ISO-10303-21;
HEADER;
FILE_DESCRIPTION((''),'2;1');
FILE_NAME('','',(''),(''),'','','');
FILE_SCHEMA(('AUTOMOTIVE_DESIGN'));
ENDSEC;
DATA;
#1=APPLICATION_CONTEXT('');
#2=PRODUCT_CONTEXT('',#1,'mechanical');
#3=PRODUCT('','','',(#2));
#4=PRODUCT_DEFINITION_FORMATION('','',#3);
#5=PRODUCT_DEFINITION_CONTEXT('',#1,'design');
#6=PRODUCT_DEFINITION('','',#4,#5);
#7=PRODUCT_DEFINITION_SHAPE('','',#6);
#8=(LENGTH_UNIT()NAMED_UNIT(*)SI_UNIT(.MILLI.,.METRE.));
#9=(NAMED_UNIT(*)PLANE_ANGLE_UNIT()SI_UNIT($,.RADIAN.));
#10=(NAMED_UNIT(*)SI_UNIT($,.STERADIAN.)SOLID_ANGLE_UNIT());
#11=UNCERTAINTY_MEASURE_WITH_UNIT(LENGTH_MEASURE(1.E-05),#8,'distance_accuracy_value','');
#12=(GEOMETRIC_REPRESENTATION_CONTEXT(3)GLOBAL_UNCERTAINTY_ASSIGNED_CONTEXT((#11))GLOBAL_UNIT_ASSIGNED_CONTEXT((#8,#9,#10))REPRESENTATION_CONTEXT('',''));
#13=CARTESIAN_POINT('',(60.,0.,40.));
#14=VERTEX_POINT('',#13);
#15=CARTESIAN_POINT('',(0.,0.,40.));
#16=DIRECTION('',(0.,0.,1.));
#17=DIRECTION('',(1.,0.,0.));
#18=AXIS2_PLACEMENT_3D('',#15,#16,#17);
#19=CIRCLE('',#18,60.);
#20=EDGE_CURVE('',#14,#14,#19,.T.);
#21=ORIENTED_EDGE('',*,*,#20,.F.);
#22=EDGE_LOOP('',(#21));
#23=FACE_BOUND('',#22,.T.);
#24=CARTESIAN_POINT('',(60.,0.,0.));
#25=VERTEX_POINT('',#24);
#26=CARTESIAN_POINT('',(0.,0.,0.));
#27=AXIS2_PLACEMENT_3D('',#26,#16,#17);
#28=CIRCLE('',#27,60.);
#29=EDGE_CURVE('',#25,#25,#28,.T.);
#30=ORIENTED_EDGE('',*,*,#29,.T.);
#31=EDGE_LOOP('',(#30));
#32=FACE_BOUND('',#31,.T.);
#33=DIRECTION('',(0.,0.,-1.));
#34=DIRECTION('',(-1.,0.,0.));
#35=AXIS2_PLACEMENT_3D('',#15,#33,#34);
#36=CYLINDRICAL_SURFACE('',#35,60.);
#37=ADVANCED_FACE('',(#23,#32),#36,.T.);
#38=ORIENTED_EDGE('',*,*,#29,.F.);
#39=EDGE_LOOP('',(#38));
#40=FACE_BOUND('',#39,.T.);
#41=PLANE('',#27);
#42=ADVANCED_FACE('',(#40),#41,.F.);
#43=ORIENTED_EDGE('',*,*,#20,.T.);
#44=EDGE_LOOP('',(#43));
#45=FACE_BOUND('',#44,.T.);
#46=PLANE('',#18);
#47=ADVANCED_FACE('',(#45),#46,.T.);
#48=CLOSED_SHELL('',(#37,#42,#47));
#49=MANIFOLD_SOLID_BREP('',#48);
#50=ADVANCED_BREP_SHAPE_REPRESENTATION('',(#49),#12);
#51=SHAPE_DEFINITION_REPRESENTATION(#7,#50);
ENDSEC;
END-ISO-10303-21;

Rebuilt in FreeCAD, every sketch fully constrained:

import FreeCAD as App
import Part
import Sketcher
Q = App.Units.Quantity

doc = App.newDocument("Part")
params = doc.addObject("Spreadsheet::Sheet", "Params")
for row, (alias, value) in enumerate([
    ("sketch1_diameter", "120 mm"),
    ("pad1_length", "40 mm"),
], start=1):
    params.set(f"A{row}", alias)
    params.set(f"B{row}", "=" + value)
    params.setAlias(f"B{row}", alias)

body = doc.addObject("PartDesign::Body", "Body")

# Sketch on XY plane
sketch1 = body.newObject("Sketcher::SketchObject", "Sketch")
sketch1.AttachmentSupport = (doc.getObject("XY_Plane"), [""])
sketch1.MapMode = "FlatFace"
sketch1.addGeometry(Part.Circle(App.Vector(0, 0, 0), App.Vector(0, 0, 1), 60), False)
sketch1.addConstraint([
    Sketcher.Constraint("Coincident", 0, 3, -1, 1),
    Sketcher.Constraint("Diameter", 0, Q("120 mm")),
])
sketch1.setExpression("Constraints[1]", "Params.sketch1_diameter")
pad1 = body.newObject("PartDesign::Pad", "Pad")
pad1.Profile = sketch1
pad1.setExpression("Length", "Params.pad1_length")

doc.recompute()
